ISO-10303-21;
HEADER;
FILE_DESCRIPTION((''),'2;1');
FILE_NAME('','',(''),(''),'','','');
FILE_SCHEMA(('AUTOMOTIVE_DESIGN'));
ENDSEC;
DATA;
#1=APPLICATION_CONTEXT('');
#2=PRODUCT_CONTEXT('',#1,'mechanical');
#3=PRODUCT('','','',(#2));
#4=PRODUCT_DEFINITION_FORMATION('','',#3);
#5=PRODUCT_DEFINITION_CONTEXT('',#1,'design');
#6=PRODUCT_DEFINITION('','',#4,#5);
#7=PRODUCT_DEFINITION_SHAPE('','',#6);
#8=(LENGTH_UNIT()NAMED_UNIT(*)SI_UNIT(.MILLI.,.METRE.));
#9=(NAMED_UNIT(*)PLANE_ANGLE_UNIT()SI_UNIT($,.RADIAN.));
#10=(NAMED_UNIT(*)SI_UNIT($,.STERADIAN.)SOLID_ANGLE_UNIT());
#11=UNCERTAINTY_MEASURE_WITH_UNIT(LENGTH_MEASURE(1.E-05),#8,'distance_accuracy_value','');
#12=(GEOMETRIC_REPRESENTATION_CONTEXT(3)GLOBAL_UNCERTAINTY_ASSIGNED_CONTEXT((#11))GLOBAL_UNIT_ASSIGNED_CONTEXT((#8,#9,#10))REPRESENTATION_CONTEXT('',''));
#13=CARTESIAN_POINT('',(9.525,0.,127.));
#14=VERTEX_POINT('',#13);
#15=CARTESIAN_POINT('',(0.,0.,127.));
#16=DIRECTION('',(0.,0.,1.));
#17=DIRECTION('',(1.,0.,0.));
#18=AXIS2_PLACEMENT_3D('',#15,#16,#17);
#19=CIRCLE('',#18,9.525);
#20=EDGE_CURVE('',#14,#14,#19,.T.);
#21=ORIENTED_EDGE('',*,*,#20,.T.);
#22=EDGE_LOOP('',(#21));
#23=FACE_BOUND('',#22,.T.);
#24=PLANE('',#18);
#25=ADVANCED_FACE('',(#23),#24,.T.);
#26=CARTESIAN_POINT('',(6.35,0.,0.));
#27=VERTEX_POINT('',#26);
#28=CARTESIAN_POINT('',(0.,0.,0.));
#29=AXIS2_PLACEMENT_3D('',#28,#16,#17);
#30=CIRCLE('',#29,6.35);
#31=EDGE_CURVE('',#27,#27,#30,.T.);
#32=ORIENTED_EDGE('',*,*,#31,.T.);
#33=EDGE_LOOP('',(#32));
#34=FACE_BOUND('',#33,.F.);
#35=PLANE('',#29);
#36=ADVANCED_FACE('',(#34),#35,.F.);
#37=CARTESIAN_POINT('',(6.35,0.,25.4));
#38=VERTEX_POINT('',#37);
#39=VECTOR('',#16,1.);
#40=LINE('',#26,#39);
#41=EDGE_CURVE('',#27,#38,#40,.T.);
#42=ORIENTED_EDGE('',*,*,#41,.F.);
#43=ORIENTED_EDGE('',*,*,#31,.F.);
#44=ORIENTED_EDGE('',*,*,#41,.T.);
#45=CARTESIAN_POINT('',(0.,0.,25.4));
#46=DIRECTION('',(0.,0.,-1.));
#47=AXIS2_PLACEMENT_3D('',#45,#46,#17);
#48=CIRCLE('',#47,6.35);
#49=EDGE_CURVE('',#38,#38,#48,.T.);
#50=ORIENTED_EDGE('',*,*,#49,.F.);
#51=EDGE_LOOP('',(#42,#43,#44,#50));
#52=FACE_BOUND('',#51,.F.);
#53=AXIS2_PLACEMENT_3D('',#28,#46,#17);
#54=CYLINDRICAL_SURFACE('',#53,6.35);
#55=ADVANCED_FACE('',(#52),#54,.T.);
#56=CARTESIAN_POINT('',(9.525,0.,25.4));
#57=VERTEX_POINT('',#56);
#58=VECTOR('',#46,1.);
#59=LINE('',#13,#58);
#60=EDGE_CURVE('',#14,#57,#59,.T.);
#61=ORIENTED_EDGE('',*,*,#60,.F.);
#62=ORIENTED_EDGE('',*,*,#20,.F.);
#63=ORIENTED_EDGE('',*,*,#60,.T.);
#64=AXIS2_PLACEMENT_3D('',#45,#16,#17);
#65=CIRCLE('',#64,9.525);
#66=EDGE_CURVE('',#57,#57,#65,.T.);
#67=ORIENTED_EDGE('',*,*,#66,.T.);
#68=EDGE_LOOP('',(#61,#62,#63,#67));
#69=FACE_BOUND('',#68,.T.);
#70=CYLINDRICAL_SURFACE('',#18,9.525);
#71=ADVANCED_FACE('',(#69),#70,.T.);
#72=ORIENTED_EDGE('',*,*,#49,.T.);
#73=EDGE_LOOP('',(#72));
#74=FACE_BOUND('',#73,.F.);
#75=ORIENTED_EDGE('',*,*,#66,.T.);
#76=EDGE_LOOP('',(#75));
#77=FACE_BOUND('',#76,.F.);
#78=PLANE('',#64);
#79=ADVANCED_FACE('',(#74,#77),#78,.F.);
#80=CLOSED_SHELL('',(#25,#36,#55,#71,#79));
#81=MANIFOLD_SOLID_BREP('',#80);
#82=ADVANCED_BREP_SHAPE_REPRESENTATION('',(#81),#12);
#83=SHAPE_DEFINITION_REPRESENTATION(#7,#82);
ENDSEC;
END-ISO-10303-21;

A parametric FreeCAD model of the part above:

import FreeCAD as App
import Part
import Sketcher

V = App.Vector
Q = App.Units.Quantity

doc = App.newDocument("Part")
body = doc.addObject("PartDesign::Body", "Body")

# Sketch on XY plane
sketch1 = doc.addObject("Sketcher::SketchObject", "Sketch")
body.addObject(sketch1)
sketch1.AttachmentSupport = (doc.XY_Plane, [""])
sketch1.MapMode = "FlatFace"
sketch1.addGeometry(Part.Circle(V(0, 0, 0), V(0, 0, 1), 6), False)
sketch1.addConstraint([
    Sketcher.Constraint("Coincident", 0, 3, -1, 1),
    Sketcher.Constraint("Diameter", 0, Q("0.5 in")),
])
pad1 = doc.addObject("PartDesign::Pad", "Pad")
body.addObject(pad1)
pad1.Profile = sketch1
pad1.Length = Q("5 in")

# Sketch on XY plane
sketch2 = doc.addObject("Sketcher::SketchObject", "Sketch001")
body.addObject(sketch2)
sketch2.AttachmentSupport = (doc.XY_Plane, [""])
sketch2.MapMode = "FlatFace"
sketch2.AttachmentOffset = App.Placement(V(0, 0, 5 * 25.4), App.Rotation())
sketch2.addGeometry(Part.Circle(V(0, 0, 0), V(0, 0, 1), 10), False)
sketch2.addConstraint([
    Sketcher.Constraint("Coincident", 0, 3, -1, 1),
    Sketcher.Constraint("Diameter", 0, Q("0.75 in")),
])
pad2 = doc.addObject("PartDesign::Pad", "Pad001")
body.addObject(pad2)
pad2.Profile = sketch2
pad2.Length = Q("4 in")
pad2.Reversed = True

doc.recompute()
